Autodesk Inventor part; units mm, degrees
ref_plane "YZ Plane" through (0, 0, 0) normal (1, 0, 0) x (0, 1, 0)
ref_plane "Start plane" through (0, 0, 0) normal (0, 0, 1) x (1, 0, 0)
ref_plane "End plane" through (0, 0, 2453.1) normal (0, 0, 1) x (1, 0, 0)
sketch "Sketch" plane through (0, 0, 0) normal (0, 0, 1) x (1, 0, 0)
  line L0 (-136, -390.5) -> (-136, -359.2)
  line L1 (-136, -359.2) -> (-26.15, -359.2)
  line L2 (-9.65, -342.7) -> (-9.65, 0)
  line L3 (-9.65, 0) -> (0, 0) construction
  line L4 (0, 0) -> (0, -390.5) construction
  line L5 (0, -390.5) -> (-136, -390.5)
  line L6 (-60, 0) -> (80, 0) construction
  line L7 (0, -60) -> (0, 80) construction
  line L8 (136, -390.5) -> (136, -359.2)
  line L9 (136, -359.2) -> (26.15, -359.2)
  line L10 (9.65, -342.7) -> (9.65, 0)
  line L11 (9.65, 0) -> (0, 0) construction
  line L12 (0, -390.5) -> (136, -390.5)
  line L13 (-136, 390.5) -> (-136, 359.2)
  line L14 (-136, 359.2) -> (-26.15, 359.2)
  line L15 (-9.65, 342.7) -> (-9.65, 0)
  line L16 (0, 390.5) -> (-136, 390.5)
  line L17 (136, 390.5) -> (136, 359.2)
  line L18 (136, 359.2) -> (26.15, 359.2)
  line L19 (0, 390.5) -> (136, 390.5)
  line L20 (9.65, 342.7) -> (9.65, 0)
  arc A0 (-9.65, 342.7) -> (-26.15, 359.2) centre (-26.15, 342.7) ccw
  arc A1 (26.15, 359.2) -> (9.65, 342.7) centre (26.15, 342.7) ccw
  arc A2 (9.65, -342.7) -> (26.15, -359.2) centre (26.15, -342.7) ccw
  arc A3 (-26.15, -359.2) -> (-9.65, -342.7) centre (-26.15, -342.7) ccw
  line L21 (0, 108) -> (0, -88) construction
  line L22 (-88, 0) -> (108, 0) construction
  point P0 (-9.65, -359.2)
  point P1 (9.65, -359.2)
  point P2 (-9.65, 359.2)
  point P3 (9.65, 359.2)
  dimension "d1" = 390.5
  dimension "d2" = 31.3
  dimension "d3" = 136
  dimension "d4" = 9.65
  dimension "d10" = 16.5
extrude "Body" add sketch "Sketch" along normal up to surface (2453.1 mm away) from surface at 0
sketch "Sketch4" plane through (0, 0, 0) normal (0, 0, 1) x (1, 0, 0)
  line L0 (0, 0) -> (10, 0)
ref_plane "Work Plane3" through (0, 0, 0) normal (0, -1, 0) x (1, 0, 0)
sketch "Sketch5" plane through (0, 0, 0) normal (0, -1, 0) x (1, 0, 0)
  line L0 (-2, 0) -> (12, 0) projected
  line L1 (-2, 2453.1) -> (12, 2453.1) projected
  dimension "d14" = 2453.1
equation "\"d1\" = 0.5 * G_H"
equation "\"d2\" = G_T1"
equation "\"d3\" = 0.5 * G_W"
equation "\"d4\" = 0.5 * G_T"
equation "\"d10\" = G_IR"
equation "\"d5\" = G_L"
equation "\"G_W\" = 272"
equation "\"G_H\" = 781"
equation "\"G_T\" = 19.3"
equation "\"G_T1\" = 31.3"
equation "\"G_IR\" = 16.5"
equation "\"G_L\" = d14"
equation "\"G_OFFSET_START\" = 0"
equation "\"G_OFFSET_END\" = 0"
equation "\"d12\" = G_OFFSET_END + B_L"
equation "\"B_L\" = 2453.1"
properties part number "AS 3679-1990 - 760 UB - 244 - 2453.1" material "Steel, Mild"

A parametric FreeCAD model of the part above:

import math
import FreeCAD as App
import Part
import Sketcher

V = App.Vector
Q = App.Units.Quantity

doc = App.newDocument("Part")
params = doc.addObject("Spreadsheet::Sheet", "Params")
for row, (alias, value) in enumerate([
    ("sketch1_radius", "16.5 mm"),
    ("sketch1_height", "31.3 mm"),
    ("pad1_length", "2453.1 mm"),
], start=1):
    params.set(f"A{row}", alias)
    params.set(f"B{row}", "=" + value)
    params.setAlias(f"B{row}", alias)

body = doc.addObject("PartDesign::Body", "Body")

# Sketch on XY plane
sketch1 = body.newObject("Sketcher::SketchObject", "Sketch")
sketch1.AttachmentSupport = (doc.getObject("XY_Plane"), [""])
sketch1.MapMode = "FlatFace"
sketch1.addGeometry(Part.LineSegment(V(-136, -359, 0), V(-136, -390, 0)), False)
sketch1.addGeometry(Part.LineSegment(V(-136, -390, 0), V(136, -390, 0)), False)
sketch1.addGeometry(Part.LineSegment(V(136, -390, 0), V(136, -359, 0)), False)
sketch1.addGeometry(Part.LineSegment(V(136, -359, 0), V(26, -359, 0)), False)
sketch1.addGeometry(Part.ArcOfCircle(Part.Circle(V(26, -343, 0), V(0, 0, 1), 16), math.radians(180), math.radians(270)), False)
sketch1.addGeometry(Part.LineSegment(V(10, -343, 0), V(10, 343, 0)), False)
sketch1.addGeometry(Part.ArcOfCircle(Part.Circle(V(26, 343, 0), V(0, 0, 1), 16), math.radians(90), math.radians(180)), False)
sketch1.addGeometry(Part.LineSegment(V(26, 359, 0), V(136, 359, 0)), False)
sketch1.addGeometry(Part.LineSegment(V(136, 359, 0), V(136, 390, 0)), False)
sketch1.addGeometry(Part.LineSegment(V(136, 390, 0), V(-136, 390, 0)), False)
sketch1.addGeometry(Part.LineSegment(V(-136, 390, 0), V(-136, 359, 0)), False)
sketch1.addGeometry(Part.LineSegment(V(-136, 359, 0), V(-26, 359, 0)), False)
sketch1.addGeometry(Part.ArcOfCircle(Part.Circle(V(-26, 343, 0), V(0, 0, 1), 16), math.radians(0), math.radians(90)), False)
sketch1.addGeometry(Part.LineSegment(V(-10, 343, 0), V(-10, -343, 0)), False)
sketch1.addGeometry(Part.ArcOfCircle(Part.Circle(V(-26, -343, 0), V(0, 0, 1), 16), math.radians(-90), math.radians(0)), False)
sketch1.addGeometry(Part.LineSegment(V(-26, -359, 0), V(-136, -359, 0)), False)
sketch1.addConstraint(Sketcher.Constraint("Coincident", 0, 2, 1, 1))
sketch1.addConstraint(Sketcher.Constraint("Coincident", 1, 2, 2, 1))
sketch1.addConstraint(Sketcher.Constraint("Coincident", 2, 2, 3, 1))
sketch1.addConstraint(Sketcher.Constraint("Tangent", 3, 2, 4, 2))
sketch1.addConstraint(Sketcher.Constraint("Tangent", 4, 1, 5, 1))
sketch1.addConstraint(Sketcher.Constraint("Tangent", 5, 2, 6, 2))
sketch1.addConstraint(Sketcher.Constraint("Tangent", 6, 1, 7, 1))
sketch1.addConstraint(Sketcher.Constraint("Coincident", 7, 2, 8, 1))
sketch1.addConstraint(Sketcher.Constraint("Coincident", 8, 2, 9, 1))
sketch1.addConstraint(Sketcher.Constraint("Coincident", 9, 2, 10, 1))
sketch1.addConstraint(Sketcher.Constraint("Coincident", 10, 2, 11, 1))
sketch1.addConstraint(Sketcher.Constraint("Tangent", 11, 2, 12, 2))
sketch1.addConstraint(Sketcher.Constraint("Tangent", 12, 1, 13, 1))
sketch1.addConstraint(Sketcher.Constraint("Tangent", 13, 2, 14, 2))
sketch1.addConstraint(Sketcher.Constraint("Tangent", 14, 1, 15, 1))
sketch1.addConstraint(Sketcher.Constraint("Coincident", 15, 2, 0, 1))
sketch1.addConstraint(Sketcher.Constraint("Vertical", 0))
sketch1.addConstraint(Sketcher.Constraint("Horizontal", 1))
sketch1.addConstraint(Sketcher.Constraint("Vertical", 2))
sketch1.addConstraint(Sketcher.Constraint("Horizontal", 3))
sketch1.addConstraint(Sketcher.Constraint("Vertical", 5))
sketch1.addConstraint(Sketcher.Constraint("Horizontal", 7))
sketch1.addConstraint(Sketcher.Constraint("Vertical", 8))
sketch1.addConstraint(Sketcher.Constraint("Horizontal", 9))
sketch1.addConstraint(Sketcher.Constraint("Vertical", 10))
sketch1.addConstraint(Sketcher.Constraint("Horizontal", 11))
sketch1.addConstraint(Sketcher.Constraint("Vertical", 13))
sketch1.addConstraint(Sketcher.Constraint("Horizontal", 15))
sketch1.addConstraint(Sketcher.Constraint("Equal", 4, 6))
sketch1.addConstraint(Sketcher.Constraint("Equal", 6, 12))
sketch1.addConstraint(Sketcher.Constraint("Equal", 12, 14))
sketch1.addConstraint(Sketcher.Constraint("Symmetric", 4, 3, 12, 3, -1, 1))
sketch1.addConstraint(Sketcher.Constraint("Symmetric", 0, 2, 8, 2, -1, 1))
sketch1.addConstraint(Sketcher.Constraint("Symmetric", 7, 2, 10, 2, -2))
sketch1.addConstraint(Sketcher.Constraint("Symmetric", 2, 2, 15, 2, -2))
sketch1.addConstraint(Sketcher.Constraint("Radius", 4, Q("16.5 mm")))
sketch1.addConstraint(Sketcher.Constraint("DistanceY", 0, 2, 0, 1, Q("31.3 mm")))
sketch1.addConstraint(Sketcher.Constraint("DistanceX", 0, 2, -1, 1, Q("136 mm")))
sketch1.addConstraint(Sketcher.Constraint("DistanceY", 0, 2, -1, 1, Q("390.5 mm")))
sketch1.addConstraint(Sketcher.Constraint("DistanceX", -1, 1, 4, 1, Q("9.65 mm")))
sketch1.setExpression("Constraints[35]", "Params.sketch1_radius")
sketch1.setExpression("Constraints[36]", "Params.sketch1_height")
pad1 = body.newObject("PartDesign::Pad", "Pad")
pad1.Profile = sketch1
pad1.setExpression("Length", "Params.pad1_length")

doc.recompute()
